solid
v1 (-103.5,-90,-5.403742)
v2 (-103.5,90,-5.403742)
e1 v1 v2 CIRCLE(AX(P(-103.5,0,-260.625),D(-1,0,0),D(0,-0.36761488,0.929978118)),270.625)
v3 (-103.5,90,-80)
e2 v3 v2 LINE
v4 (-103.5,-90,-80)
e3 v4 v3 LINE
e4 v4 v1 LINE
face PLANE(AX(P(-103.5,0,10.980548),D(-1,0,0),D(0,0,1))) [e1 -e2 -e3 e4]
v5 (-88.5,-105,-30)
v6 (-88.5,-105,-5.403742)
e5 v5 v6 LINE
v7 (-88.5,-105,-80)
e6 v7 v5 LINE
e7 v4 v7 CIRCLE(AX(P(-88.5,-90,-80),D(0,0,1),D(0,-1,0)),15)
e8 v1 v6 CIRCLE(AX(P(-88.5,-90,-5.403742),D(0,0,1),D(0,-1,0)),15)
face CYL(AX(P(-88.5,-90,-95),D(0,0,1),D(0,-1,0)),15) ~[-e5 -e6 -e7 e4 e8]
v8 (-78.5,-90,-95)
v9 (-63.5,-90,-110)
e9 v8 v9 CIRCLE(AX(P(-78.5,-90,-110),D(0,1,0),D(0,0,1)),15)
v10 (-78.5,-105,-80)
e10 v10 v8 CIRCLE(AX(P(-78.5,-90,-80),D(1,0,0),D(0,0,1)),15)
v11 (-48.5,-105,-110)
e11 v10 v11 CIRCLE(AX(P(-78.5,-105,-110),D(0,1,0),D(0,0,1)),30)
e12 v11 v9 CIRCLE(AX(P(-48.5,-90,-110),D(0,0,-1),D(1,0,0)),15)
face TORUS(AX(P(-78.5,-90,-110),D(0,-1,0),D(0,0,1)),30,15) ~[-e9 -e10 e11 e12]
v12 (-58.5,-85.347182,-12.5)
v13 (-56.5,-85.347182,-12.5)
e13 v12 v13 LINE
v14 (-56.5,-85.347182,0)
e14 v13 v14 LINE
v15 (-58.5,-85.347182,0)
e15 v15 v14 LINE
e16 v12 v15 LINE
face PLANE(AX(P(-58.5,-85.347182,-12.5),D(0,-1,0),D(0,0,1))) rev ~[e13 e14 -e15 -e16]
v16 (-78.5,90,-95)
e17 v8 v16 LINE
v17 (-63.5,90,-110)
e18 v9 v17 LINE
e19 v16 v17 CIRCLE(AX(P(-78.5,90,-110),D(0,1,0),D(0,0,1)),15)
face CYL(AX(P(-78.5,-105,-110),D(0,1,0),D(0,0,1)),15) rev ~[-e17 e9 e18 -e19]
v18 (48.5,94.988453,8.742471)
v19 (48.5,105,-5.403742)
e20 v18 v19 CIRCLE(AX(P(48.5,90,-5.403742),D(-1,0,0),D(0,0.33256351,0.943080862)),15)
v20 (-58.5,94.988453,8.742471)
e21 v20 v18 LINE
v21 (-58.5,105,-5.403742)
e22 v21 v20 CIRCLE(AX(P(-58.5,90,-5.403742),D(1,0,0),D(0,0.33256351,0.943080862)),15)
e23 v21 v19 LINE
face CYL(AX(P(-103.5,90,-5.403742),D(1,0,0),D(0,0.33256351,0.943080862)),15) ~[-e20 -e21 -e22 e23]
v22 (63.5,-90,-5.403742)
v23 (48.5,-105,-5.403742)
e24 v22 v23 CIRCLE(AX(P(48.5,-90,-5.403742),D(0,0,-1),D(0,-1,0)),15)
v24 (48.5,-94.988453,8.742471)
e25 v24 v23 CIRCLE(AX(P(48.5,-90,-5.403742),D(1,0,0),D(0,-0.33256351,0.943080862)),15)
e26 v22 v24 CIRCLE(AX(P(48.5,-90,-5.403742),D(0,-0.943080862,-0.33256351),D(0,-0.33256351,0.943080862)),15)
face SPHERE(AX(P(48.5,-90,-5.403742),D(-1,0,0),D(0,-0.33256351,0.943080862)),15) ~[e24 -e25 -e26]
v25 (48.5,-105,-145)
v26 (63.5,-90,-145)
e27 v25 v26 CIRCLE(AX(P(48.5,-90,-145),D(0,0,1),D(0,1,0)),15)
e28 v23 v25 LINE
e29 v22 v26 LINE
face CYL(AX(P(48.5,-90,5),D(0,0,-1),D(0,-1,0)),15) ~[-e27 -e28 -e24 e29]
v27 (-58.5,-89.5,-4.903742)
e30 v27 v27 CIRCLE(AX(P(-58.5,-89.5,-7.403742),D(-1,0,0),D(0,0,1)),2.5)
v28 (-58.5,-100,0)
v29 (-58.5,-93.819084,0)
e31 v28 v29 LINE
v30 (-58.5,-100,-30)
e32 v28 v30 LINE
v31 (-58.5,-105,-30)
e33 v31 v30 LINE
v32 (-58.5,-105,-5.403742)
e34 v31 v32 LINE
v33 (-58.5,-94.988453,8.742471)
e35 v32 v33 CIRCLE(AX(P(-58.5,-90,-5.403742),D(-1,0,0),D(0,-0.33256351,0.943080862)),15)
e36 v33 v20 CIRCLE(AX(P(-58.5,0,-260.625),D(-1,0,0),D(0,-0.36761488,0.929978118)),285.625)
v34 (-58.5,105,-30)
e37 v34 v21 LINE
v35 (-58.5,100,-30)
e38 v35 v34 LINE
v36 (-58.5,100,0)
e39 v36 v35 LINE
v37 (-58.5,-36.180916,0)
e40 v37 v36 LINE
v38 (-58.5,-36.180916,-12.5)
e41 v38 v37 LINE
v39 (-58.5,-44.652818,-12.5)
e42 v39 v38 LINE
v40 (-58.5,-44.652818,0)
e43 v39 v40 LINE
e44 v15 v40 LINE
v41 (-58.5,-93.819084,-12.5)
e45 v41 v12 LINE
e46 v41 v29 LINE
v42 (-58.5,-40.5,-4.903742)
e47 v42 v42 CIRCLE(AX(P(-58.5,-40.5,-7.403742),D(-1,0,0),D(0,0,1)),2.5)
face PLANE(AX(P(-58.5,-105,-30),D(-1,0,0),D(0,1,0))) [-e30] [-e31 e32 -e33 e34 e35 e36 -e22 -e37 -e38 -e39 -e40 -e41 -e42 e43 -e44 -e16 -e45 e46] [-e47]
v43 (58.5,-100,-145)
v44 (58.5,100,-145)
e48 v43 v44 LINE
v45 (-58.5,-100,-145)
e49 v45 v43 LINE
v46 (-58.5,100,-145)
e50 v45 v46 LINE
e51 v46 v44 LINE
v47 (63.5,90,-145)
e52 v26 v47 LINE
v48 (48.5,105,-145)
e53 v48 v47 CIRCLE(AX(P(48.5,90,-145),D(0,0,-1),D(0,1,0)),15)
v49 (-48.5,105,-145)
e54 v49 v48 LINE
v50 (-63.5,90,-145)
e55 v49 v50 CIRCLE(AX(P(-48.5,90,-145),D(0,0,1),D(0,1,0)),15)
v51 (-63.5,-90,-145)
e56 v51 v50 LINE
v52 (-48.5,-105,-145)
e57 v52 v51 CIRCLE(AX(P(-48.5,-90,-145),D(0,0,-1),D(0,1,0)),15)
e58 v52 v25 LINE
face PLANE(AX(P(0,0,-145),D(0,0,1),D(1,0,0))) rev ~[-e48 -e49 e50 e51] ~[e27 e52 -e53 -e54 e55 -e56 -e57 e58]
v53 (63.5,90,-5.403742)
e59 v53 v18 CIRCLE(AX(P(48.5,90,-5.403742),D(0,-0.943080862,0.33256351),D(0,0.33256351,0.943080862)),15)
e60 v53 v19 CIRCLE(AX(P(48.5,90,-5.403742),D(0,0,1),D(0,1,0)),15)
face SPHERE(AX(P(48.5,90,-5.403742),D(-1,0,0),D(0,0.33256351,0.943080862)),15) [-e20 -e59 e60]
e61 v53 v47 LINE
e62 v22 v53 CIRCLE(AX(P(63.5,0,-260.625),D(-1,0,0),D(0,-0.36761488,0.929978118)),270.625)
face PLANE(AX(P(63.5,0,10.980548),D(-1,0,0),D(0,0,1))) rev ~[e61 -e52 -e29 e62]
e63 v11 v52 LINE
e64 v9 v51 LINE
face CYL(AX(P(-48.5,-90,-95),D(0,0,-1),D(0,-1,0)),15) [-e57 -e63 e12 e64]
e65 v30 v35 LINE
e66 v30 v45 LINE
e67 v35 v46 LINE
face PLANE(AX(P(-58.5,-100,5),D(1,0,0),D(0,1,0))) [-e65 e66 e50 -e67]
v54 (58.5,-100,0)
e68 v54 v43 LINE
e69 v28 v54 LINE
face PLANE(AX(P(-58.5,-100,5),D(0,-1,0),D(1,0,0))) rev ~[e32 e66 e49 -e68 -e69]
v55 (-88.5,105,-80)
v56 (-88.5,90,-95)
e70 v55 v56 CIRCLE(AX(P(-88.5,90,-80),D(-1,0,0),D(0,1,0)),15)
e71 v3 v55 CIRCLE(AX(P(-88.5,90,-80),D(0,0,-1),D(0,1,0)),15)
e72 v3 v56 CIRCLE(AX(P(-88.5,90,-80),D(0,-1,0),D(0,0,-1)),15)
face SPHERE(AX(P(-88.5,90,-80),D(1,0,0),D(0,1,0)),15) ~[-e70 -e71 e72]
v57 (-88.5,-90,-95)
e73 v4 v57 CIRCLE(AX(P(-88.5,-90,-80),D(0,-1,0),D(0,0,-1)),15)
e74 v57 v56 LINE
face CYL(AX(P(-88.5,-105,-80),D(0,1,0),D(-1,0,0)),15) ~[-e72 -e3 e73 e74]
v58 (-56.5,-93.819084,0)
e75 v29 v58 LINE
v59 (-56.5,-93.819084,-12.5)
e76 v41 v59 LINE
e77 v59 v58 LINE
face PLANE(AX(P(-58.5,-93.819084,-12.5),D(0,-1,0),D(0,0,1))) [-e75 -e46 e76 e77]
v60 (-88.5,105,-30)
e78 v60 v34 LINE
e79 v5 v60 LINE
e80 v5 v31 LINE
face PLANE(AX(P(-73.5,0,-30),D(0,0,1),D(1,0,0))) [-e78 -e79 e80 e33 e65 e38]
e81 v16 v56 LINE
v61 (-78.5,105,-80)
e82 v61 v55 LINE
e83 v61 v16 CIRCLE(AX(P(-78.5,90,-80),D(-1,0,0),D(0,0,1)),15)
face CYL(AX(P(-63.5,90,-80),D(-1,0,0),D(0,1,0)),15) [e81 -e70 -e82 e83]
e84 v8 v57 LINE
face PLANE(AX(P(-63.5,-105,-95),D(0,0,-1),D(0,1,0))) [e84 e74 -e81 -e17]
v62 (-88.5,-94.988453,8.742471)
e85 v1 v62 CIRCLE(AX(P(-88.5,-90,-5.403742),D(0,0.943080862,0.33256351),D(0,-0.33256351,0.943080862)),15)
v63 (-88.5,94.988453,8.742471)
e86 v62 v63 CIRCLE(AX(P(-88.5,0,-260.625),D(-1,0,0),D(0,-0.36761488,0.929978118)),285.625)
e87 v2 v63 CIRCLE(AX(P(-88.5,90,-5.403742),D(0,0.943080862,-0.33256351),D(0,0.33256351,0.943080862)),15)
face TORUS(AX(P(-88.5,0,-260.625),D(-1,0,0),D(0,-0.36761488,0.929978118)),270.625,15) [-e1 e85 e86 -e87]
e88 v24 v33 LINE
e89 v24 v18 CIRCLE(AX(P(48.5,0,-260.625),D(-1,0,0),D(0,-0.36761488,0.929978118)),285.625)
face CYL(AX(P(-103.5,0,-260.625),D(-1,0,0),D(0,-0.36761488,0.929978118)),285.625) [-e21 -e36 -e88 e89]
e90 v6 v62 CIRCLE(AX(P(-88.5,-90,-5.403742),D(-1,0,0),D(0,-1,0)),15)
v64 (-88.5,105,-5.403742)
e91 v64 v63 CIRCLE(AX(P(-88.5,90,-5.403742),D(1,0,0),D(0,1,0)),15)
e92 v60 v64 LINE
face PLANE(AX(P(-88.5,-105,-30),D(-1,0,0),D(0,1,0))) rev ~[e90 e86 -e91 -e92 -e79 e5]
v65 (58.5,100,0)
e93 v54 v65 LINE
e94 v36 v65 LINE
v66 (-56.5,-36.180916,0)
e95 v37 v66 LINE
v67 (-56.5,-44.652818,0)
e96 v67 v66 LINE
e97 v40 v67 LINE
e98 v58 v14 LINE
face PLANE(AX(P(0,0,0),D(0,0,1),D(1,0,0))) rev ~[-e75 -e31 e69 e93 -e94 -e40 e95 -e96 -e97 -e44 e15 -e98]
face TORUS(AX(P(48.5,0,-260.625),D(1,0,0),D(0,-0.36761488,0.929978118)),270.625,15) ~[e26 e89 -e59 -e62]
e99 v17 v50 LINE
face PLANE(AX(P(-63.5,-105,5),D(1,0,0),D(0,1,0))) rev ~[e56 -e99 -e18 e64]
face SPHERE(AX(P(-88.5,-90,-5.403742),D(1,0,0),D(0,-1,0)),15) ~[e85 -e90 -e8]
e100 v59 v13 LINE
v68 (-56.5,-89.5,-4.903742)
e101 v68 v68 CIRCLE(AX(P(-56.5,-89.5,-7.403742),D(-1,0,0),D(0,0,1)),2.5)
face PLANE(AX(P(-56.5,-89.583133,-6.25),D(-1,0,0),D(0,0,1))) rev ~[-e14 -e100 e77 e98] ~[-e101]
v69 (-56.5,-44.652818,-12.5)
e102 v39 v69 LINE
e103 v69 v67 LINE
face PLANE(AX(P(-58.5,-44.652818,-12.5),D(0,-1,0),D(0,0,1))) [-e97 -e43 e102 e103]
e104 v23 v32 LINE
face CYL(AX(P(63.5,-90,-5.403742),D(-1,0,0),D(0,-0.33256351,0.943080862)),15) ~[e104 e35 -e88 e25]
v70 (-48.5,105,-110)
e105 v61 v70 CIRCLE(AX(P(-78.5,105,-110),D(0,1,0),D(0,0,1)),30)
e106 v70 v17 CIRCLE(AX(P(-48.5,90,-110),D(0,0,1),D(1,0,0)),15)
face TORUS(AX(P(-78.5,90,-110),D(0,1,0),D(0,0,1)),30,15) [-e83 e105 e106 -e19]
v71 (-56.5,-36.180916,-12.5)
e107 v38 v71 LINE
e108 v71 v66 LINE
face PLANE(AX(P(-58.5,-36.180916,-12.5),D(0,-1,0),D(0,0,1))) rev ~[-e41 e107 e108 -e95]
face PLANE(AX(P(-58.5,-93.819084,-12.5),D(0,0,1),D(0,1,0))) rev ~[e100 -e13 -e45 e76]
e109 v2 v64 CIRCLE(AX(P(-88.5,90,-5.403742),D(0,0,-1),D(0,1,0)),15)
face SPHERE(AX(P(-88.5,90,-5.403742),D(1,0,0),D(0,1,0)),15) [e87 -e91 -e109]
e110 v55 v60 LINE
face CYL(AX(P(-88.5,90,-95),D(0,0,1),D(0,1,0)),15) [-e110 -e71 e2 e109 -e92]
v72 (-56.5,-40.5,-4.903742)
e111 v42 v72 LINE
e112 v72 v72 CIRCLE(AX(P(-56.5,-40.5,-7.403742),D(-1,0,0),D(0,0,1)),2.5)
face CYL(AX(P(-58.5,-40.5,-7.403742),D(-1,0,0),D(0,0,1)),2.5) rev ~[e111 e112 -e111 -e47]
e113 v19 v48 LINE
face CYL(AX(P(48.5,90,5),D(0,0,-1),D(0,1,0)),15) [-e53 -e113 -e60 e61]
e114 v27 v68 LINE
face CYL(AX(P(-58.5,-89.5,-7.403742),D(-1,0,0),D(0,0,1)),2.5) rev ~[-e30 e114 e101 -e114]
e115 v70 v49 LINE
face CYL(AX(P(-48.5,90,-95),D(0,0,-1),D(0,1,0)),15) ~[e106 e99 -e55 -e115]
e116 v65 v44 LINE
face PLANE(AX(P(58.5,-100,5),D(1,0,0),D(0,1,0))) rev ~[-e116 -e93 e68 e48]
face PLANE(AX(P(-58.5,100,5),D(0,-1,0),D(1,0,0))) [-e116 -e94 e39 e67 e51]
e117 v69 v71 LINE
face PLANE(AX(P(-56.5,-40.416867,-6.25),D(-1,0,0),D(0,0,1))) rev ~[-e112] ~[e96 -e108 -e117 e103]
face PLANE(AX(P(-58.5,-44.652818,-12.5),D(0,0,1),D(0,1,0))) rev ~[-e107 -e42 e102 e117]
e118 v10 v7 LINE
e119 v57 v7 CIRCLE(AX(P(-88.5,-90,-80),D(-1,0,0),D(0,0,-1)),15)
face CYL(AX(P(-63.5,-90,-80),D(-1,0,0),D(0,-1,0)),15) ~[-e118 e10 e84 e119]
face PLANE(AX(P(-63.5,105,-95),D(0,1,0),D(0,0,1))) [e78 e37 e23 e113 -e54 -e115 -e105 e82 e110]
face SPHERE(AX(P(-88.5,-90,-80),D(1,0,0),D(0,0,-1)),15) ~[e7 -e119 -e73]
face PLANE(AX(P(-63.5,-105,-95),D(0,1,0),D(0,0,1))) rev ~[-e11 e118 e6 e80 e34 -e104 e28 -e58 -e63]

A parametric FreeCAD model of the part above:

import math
import FreeCAD as App
import Part
import Sketcher

V = App.Vector


def edges_at(feature, points):
    """Names of the edges that pass closest to the given points."""
    edges = feature.Shape.Edges
    near = lambda p: min(range(len(edges)), key=lambda i: edges[i].distToShape(Part.Vertex(*p))[0])
    return sorted({f"Edge{near(p) + 1}" for p in points})


def add_polygon(sketch, points):
    """Adds a closed chain of lines whose ends are joined by coincident constraints."""
    first, n = sketch.GeometryCount, len(points)
    for a, b in zip(points, points[1:] + points[:1]):
        sketch.addGeometry(Part.LineSegment(App.Vector(*a, 0), App.Vector(*b, 0)), False)
    for i in range(n):
        sketch.addConstraint(Sketcher.Constraint("Coincident", first + i, 2, first + (i + 1) % n, 1))

doc = App.newDocument("Part")
body = doc.addObject("PartDesign::Body", "Body")

# Sketch on XY plane
sketch1 = body.newObject("Sketcher::SketchObject", "Sketch")
sketch1.AttachmentSupport = (doc.getObject("XY_Plane"), [""])
sketch1.MapMode = "FlatFace"
add_polygon(sketch1, [(-58, 100), (-58, -100), (58, -100), (58, 100)])  # lines 0-3
sketch1.addConstraint(Sketcher.Constraint("Vertical", 0))
sketch1.addConstraint(Sketcher.Constraint("Horizontal", 1))
sketch1.addConstraint(Sketcher.Constraint("Vertical", 2))
sketch1.addConstraint(Sketcher.Constraint("Horizontal", 3))
sketch1.addConstraint(Sketcher.Constraint("Symmetric", 0, 2, 2, 2, -1, 1))
sketch1.addConstraint(Sketcher.Constraint("DistanceX", 1, 1, 1, 2, 117.0))
sketch1.addConstraint(Sketcher.Constraint("DistanceY", 0, 2, 0, 1, 200.0))
pad1 = body.newObject("PartDesign::Pad", "Pad")
pad1.Profile = sketch1
pad1.Length = 5

# Sketch on XY plane
sketch2 = body.newObject("Sketcher::SketchObject", "Sketch001")
sketch2.AttachmentSupport = (doc.getObject("XY_Plane"), [""])
sketch2.MapMode = "FlatFace"
sketch2.AttachmentOffset = App.Placement(V(0, 0, 5), App.Rotation())
add_polygon(sketch2, [(-64, 105), (-64, -105), (64, -105), (64, 105)])  # lines 0-3
add_polygon(sketch2, [(58, -100), (-58, -100), (-58, 100), (58, 100)])  # lines 4-7
sketch2.addConstraint(Sketcher.Constraint("Vertical", 0))
sketch2.addConstraint(Sketcher.Constraint("Horizontal", 1))
sketch2.addConstraint(Sketcher.Constraint("Vertical", 2))
sketch2.addConstraint(Sketcher.Constraint("Horizontal", 3))
sketch2.addConstraint(Sketcher.Constraint("Horizontal", 4))
sketch2.addConstraint(Sketcher.Constraint("Vertical", 5))
sketch2.addConstraint(Sketcher.Constraint("Horizontal", 6))
sketch2.addConstraint(Sketcher.Constraint("Vertical", 7))
sketch2.addConstraint(Sketcher.Constraint("Symmetric", 0, 2, 2, 2, -1, 1))
sketch2.addConstraint(Sketcher.Constraint("Symmetric", 4, 2, 6, 2, -1, 1))
sketch2.addConstraint(Sketcher.Constraint("DistanceX", 1, 1, 1, 2, 127.0))
sketch2.addConstraint(Sketcher.Constraint("DistanceX", 4, 2, 4, 1, 117.0))
sketch2.addConstraint(Sketcher.Constraint("DistanceY", 0, 2, 0, 1, 210.0))
sketch2.addConstraint(Sketcher.Constraint("DistanceY", 5, 1, 5, 2, 200.0))
pad2 = body.newObject("PartDesign::Pad", "Pad001")
pad2.Profile = sketch2
pad2.Length = 150
pad2.Reversed = True

# Sketch on YZ plane
sketch3 = body.newObject("Sketcher::SketchObject", "Sketch002")
sketch3.AttachmentSupport = (doc.getObject("YZ_Plane"), [""])
sketch3.MapMode = "FlatFace"
sketch3.AttachmentOffset = App.Placement(V(0, 0, -63.5), App.Rotation())
add_polygon(sketch3, [(105, -95), (-105, -95), (-105, 5), (105, 5)])  # lines 0-3
sketch3.addConstraint(Sketcher.Constraint("Horizontal", 0))
sketch3.addConstraint(Sketcher.Constraint("Vertical", 1))
sketch3.addConstraint(Sketcher.Constraint("Horizontal", 2))
sketch3.addConstraint(Sketcher.Constraint("Vertical", 3))
sketch3.addConstraint(Sketcher.Constraint("DistanceX", 0, 2, 0, 1, 210.0))
sketch3.addConstraint(Sketcher.Constraint("DistanceY", 1, 1, 1, 2, 100.0))
sketch3.addConstraint(Sketcher.Constraint("DistanceX", 0, 2, -1, 1, 105.0))
sketch3.addConstraint(Sketcher.Constraint("DistanceY", 0, 2, -1, 1, 95.0))
pad3 = body.newObject("PartDesign::Pad", "Pad002")
pad3.Profile = sketch3
pad3.Length = 40
pad3.Reversed = True

# Sketch on YZ plane
sketch4 = body.newObject("Sketcher::SketchObject", "Sketch003")
sketch4.AttachmentSupport = (doc.getObject("YZ_Plane"), [""])
sketch4.MapMode = "FlatFace"
sketch4.AttachmentOffset = App.Placement(V(0, 0, -103.5), App.Rotation())
sketch4.addGeometry(Part.LineSegment(V(105, 5, 0), V(-105, 5, 0)), False)
sketch4.addGeometry(Part.ArcOfCircle(Part.Circle(V(0, -261, 0), V(0, 0, 1), 286), math.radians(68), math.radians(112)), False)
sketch4.addConstraint(Sketcher.Constraint("Coincident", 0, 1, 1, 1))
sketch4.addConstraint(Sketcher.Constraint("Coincident", 1, 2, 0, 2))
sketch4.addConstraint(Sketcher.Constraint("Horizontal", 0))
sketch4.addConstraint(Sketcher.Constraint("PointOnObject", 1, 3, -2))
sketch4.addConstraint(Sketcher.Constraint("DistanceX", 0, 2, 0, 1, 210.0))
sketch4.addConstraint(Sketcher.Constraint("DistanceY", -1, 1, 0, 1, 5.0))
sketch4.addConstraint(Sketcher.Constraint("Radius", 1, 285.625))
pad4 = body.newObject("PartDesign::Pad", "Pad003")
pad4.Profile = sketch4
pad4.Length = 167
doc.recompute()

fillet = body.newObject("PartDesign::Fillet", "Fillet")
fillet.Base = (pad4, edges_at(pad4, [
    (63.5, 105, -70),
    (63.5, -105, -70),
    (-63.5, -105, -120),
    (-63.5, 105, -120),
    (-20, 105, 5),
    (-20, -105, 5),
    (-63.5, 0, -95),
    (-83.5, 105, -95),
    (-83.5, -105, -95),
    (-103.5, 105, -45),
    (-103.5, 0, -95),
    (-103.5, -105, -45),
    (-103.5, 0, 25),
    (63.5, 0, 25),
]))
fillet.Radius = 15

# Sketch on XY plane
sketch5 = body.newObject("Sketcher::SketchObject", "Sketch004")
sketch5.AttachmentSupport = (doc.getObject("XY_Plane"), [""])
sketch5.MapMode = "FlatFace"
add_polygon(sketch5, [(-88, 105), (-88, -105), (-58, -105), (-58, 105)])  # lines 0-3
sketch5.addConstraint(Sketcher.Constraint("Vertical", 0))
sketch5.addConstraint(Sketcher.Constraint("Horizontal", 1))
sketch5.addConstraint(Sketcher.Constraint("Vertical", 2))
sketch5.addConstraint(Sketcher.Constraint("Horizontal", 3))
sketch5.addConstraint(Sketcher.Constraint("DistanceX", 1, 1, 1, 2, 30.0))
sketch5.addConstraint(Sketcher.Constraint("DistanceY", 0, 2, 0, 1, 210.0))
sketch5.addConstraint(Sketcher.Constraint("DistanceY", 0, 2, -1, 1, 105.0))
sketch5.addConstraint(Sketcher.Constraint("DistanceX", 0, 2, -1, 1, 88.5))
pocket1 = body.newObject("PartDesign::Pocket", "Pocket")
pocket1.Profile = sketch5
pocket1.Type = "TwoLengths"
pocket1.Length = 207.790353
pocket1.Length2 = 30
pocket1.Reversed = True

# Sketch on YZ plane
sketch6 = body.newObject("Sketcher::SketchObject", "Sketch005")
sketch6.AttachmentSupport = (doc.getObject("YZ_Plane"), [""])
sketch6.MapMode = "FlatFace"
sketch6.AttachmentOffset = App.Placement(V(0, 0, -58.5), App.Rotation())
add_polygon(sketch6, [(-36.2, -12.5), (-44.7, -12.5), (-44.7, 0), (-36.2, 0)])  # lines 0-3
sketch6.addGeometry(Part.Circle(V(-40.5, -7.4, 0), V(0, 0, 1), 2.5), False)  # 4
add_polygon(sketch6, [(-85.3, -12.5), (-93.8, -12.5), (-93.8, 0), (-85.3, 0)])  # lines 5-8
sketch6.addGeometry(Part.Circle(V(-89.5, -7.4, 0), V(0, 0, 1), 2.5), False)  # 9
sketch6.addConstraint(Sketcher.Constraint("Horizontal", 0))
sketch6.addConstraint(Sketcher.Constraint("Vertical", 1))
sketch6.addConstraint(Sketcher.Constraint("Horizontal", 2))
sketch6.addConstraint(Sketcher.Constraint("Vertical", 3))
sketch6.addConstraint(Sketcher.Constraint("Horizontal", 5))
sketch6.addConstraint(Sketcher.Constraint("Vertical", 6))
sketch6.addConstraint(Sketcher.Constraint("Horizontal", 7))
sketch6.addConstraint(Sketcher.Constraint("Vertical", 8))
sketch6.addConstraint(Sketcher.Constraint("Equal", 4, 9))
sketch6.addConstraint(Sketcher.Constraint("PointOnObject", 1, 2, -1))
sketch6.addConstraint(Sketcher.Constraint("PointOnObject", 6, 2, -1))
sketch6.addConstraint(Sketcher.Constraint("Horizontal", 4, 3, 9, 3))
sketch6.addConstraint(Sketcher.Constraint("Horizontal", 3, 2, 5, 2))
sketch6.addConstraint(Sketcher.Constraint("Equal", 2, 5))
sketch6.addConstraint(Sketcher.Constraint("Diameter", 4, 5.0))
sketch6.addConstraint(Sketcher.Constraint("DistanceY", 1, 1, 1, 2, 12.5))
sketch6.addConstraint(Sketcher.Constraint("DistanceX", 9, 3, 4, 3, 49.0))
sketch6.addConstraint(Sketcher.Constraint("DistanceX", 4, 3, -1, 1, 40.5))
sketch6.addConstraint(Sketcher.Constraint("DistanceX", 0, 2, 0, 1, 8.471902))
sketch6.addConstraint(Sketcher.Constraint("DistanceY", 4, 3, -1, 1, 7.403742))
sketch6.addConstraint(Sketcher.Constraint("DistanceX", 0, 2, -1, 1, 44.652818))
sketch6.addConstraint(Sketcher.Constraint("DistanceX", 5, 2, -1, 1, 93.819084))
pad5 = body.newObject("PartDesign::Pad", "Pad004")
pad5.Profile = sketch6
pad5.Length = 2

doc.recompute()
